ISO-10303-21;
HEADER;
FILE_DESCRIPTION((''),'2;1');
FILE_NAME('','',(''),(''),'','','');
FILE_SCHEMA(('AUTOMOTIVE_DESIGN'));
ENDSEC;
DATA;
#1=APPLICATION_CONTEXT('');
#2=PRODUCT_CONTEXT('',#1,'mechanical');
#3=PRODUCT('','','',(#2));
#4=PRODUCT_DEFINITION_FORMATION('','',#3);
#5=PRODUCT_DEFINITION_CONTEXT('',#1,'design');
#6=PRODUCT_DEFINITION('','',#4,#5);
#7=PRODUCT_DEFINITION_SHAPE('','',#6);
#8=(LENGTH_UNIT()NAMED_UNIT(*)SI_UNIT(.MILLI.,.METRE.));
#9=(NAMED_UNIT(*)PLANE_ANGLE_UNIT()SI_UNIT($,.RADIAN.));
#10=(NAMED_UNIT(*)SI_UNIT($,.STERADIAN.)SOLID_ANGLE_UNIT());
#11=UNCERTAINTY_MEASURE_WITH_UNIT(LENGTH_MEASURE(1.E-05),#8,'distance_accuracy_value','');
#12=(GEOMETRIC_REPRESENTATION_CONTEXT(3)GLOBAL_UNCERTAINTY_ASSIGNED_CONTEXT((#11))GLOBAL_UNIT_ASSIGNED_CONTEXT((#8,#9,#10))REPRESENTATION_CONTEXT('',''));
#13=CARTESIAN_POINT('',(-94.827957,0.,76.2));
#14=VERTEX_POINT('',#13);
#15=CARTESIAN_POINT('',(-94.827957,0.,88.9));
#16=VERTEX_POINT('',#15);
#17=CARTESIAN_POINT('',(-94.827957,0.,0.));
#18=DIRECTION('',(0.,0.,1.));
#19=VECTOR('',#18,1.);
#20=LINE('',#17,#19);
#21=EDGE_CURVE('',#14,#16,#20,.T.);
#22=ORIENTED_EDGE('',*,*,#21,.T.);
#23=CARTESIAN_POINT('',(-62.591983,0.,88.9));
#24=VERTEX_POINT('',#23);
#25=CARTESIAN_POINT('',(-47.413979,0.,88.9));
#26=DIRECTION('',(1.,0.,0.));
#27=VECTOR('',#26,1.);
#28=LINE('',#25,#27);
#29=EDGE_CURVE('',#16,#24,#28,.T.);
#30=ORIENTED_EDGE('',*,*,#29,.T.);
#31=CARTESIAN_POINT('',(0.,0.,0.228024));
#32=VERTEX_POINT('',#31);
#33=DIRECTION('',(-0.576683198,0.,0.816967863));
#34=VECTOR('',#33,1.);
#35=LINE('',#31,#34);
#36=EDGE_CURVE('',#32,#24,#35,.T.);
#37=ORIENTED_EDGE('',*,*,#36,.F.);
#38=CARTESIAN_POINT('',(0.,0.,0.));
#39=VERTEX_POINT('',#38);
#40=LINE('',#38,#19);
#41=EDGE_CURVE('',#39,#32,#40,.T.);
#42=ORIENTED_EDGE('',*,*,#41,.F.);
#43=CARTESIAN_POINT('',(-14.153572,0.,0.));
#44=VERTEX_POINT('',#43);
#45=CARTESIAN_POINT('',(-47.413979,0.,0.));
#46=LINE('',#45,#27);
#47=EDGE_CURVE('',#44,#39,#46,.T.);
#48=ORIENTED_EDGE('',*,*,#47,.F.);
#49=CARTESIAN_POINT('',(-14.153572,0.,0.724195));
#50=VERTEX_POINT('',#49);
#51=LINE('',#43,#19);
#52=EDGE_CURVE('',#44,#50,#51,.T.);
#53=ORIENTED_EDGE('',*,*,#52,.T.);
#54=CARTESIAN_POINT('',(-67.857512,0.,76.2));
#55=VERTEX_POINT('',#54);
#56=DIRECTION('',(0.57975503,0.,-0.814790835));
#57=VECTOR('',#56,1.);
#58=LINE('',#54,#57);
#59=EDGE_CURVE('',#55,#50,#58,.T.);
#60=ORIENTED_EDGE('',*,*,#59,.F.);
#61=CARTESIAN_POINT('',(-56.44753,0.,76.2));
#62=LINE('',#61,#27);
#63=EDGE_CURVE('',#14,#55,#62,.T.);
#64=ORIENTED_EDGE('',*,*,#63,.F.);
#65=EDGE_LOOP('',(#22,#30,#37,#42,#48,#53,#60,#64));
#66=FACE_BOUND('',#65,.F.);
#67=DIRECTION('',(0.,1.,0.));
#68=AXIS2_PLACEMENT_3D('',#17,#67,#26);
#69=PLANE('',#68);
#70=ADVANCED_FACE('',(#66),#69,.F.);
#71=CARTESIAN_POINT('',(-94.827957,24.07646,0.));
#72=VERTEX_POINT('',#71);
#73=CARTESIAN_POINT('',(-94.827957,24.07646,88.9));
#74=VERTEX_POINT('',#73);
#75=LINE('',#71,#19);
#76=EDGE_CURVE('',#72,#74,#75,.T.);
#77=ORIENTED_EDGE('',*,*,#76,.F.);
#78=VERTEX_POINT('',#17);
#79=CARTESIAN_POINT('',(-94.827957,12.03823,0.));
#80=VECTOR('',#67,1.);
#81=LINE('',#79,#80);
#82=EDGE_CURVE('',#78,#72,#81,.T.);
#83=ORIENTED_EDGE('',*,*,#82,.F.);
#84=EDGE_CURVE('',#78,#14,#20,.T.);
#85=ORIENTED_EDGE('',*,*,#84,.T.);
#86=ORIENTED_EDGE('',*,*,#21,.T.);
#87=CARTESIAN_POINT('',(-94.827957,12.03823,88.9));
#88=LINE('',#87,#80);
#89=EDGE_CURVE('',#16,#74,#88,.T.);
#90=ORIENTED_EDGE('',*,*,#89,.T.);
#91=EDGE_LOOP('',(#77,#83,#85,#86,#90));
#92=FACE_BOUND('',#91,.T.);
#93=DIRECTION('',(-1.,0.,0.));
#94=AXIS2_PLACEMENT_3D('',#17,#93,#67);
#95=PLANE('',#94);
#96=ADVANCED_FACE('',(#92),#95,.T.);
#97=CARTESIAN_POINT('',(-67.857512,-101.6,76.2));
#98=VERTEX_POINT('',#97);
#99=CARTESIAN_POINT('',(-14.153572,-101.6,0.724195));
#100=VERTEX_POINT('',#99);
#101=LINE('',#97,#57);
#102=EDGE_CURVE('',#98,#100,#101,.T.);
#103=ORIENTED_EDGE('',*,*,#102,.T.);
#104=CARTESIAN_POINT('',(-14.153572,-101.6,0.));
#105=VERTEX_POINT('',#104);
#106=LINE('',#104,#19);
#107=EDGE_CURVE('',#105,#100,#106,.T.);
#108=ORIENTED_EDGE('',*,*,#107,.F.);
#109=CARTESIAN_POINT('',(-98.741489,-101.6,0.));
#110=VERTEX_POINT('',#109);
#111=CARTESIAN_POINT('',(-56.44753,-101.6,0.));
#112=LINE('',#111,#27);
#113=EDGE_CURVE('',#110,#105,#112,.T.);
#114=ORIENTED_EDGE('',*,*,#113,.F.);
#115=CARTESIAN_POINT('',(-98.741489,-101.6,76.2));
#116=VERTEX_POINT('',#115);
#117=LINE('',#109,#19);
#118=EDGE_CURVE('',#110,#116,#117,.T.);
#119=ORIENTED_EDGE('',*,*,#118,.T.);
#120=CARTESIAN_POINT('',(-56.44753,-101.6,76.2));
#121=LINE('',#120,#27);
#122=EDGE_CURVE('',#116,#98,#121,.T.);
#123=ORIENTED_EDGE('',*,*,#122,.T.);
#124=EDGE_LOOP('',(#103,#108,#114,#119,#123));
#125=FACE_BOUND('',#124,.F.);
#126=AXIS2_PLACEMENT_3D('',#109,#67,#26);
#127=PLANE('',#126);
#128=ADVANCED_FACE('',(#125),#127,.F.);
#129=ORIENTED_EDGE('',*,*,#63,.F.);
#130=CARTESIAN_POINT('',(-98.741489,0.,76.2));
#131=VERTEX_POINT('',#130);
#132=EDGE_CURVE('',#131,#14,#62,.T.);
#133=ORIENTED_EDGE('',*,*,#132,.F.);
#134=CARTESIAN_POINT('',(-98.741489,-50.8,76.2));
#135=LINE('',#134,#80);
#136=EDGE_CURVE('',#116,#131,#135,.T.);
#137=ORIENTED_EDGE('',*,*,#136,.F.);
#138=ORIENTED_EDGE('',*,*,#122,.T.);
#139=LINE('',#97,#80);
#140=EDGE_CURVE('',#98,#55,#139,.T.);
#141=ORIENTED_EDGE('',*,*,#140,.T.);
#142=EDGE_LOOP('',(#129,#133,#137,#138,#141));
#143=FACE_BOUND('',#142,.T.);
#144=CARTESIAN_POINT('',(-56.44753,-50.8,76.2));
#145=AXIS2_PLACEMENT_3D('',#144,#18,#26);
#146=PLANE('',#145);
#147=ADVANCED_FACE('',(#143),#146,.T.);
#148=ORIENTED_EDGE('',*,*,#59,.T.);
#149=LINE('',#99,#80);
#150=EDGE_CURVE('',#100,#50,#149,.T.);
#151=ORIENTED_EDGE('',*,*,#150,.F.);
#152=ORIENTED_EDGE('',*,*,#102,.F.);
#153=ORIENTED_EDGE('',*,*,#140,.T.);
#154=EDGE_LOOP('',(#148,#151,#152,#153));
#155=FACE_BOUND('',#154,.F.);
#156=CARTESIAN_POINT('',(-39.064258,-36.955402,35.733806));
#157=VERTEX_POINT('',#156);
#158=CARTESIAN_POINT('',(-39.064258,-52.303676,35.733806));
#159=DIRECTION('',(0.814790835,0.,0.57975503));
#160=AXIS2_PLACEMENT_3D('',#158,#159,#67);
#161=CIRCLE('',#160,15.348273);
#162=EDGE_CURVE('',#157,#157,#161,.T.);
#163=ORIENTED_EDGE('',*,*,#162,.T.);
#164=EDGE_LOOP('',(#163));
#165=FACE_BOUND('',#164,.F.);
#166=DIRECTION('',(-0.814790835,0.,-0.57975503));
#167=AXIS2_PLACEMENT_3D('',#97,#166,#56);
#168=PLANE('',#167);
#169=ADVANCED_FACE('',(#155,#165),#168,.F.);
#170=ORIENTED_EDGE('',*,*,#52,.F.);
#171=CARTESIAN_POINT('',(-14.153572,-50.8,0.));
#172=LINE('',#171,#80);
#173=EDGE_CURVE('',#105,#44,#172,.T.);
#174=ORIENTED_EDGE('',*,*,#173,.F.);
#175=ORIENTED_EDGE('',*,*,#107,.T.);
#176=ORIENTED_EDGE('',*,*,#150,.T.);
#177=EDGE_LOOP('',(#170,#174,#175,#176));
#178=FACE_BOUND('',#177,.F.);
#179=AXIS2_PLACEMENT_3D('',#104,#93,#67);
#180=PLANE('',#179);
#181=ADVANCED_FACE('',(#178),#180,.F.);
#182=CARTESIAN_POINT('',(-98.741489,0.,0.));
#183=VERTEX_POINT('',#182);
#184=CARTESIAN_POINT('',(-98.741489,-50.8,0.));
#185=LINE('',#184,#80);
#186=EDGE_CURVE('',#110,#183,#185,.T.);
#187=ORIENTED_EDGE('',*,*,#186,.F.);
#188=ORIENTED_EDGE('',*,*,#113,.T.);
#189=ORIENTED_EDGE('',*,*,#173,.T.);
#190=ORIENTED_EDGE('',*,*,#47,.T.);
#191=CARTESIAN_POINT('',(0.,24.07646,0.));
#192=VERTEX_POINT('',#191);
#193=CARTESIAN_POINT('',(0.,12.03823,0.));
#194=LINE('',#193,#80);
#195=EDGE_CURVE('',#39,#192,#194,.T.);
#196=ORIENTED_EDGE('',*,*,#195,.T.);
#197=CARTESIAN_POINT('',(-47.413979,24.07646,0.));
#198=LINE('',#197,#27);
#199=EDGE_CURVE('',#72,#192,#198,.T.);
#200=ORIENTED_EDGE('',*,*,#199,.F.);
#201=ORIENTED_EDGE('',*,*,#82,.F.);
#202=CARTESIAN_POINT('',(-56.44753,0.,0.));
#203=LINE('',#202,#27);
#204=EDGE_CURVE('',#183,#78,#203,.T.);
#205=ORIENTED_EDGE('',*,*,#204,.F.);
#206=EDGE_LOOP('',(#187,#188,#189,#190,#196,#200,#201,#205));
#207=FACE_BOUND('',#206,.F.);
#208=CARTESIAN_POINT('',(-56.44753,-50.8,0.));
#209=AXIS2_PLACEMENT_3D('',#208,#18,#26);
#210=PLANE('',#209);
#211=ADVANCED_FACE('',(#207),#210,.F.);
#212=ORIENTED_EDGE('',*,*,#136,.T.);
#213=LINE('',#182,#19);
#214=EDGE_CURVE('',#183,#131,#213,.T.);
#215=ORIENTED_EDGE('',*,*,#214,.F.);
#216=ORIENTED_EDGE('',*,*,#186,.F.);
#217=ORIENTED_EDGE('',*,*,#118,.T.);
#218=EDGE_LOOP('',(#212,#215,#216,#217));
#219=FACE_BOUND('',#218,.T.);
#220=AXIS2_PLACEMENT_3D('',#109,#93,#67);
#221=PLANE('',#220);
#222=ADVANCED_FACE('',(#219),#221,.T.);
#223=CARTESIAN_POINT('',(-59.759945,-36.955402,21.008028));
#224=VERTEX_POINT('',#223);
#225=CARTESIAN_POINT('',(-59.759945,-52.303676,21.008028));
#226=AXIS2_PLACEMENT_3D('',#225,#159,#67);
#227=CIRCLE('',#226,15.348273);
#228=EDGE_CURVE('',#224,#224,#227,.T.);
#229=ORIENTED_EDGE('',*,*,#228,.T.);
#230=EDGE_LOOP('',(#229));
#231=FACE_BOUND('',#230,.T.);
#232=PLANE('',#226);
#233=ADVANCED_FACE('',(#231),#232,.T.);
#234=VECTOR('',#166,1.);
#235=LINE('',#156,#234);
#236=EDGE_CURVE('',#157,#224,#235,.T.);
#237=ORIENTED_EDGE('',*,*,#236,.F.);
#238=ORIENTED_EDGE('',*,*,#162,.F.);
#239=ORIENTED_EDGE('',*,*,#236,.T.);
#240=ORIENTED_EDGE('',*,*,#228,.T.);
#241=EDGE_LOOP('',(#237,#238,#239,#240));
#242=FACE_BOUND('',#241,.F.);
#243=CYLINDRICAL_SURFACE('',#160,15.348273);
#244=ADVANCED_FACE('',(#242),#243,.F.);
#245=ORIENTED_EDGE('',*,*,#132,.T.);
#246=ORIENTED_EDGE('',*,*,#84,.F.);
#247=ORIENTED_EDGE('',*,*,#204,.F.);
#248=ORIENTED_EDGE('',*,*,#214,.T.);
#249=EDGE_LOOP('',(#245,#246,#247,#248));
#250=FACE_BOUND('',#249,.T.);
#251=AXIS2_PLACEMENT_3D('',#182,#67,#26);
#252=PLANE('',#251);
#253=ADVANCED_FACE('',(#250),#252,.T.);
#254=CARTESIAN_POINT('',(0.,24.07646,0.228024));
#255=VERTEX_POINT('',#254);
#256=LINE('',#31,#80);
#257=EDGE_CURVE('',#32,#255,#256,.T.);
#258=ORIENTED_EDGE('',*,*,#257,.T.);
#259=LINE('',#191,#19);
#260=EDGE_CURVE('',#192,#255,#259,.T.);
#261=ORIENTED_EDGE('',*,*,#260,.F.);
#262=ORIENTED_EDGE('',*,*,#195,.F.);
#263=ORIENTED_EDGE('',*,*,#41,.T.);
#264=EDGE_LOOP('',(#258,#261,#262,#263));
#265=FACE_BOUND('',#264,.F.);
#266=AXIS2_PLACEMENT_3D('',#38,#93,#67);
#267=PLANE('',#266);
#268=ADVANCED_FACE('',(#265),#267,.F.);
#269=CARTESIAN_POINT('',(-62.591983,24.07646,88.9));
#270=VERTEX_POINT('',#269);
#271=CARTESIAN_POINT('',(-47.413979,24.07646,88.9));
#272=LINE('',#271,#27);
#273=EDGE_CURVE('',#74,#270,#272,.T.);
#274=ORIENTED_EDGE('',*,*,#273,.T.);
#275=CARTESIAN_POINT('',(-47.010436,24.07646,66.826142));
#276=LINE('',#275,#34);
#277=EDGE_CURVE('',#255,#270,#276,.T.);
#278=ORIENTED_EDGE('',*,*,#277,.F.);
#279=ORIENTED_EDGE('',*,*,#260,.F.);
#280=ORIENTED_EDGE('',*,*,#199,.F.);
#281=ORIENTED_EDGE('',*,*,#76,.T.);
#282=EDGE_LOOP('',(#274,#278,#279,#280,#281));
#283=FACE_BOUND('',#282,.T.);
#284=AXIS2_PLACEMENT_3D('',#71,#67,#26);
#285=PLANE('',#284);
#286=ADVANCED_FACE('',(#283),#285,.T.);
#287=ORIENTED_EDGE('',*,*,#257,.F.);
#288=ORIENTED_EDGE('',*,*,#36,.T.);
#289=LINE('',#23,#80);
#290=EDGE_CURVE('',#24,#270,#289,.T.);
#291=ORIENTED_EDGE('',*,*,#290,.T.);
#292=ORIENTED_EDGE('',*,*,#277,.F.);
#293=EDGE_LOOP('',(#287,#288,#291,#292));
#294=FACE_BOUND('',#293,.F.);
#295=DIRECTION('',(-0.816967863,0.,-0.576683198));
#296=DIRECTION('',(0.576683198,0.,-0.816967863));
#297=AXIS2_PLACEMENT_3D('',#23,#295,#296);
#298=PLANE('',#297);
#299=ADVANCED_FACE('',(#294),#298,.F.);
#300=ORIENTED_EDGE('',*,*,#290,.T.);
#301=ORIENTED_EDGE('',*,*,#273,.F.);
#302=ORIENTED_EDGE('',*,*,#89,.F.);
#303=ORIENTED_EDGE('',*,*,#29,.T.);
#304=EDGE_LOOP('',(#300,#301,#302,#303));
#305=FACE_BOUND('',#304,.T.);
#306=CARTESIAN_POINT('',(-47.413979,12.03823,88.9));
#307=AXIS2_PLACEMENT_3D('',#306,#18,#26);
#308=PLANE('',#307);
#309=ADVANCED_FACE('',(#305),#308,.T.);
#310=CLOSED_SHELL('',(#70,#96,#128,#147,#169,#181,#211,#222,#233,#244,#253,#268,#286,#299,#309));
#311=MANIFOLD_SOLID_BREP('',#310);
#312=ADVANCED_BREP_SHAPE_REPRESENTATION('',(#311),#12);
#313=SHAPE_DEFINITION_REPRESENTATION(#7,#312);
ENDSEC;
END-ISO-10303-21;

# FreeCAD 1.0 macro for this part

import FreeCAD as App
import Part
import Sketcher
Q = App.Units.Quantity


def add_polygon(sketch, points):
    """Adds a closed chain of lines whose ends are joined by coincident constraints."""
    first, n = sketch.GeometryCount, len(points)
    for a, b in zip(points, points[1:] + points[:1]):
        sketch.addGeometry(Part.LineSegment(App.Vector(*a, 0), App.Vector(*b, 0)), False)
    for i in range(n):
        sketch.addConstraint(Sketcher.Constraint("Coincident", first + i, 2, first + (i + 1) % n, 1))

doc = App.newDocument("Part")
body = doc.addObject("PartDesign::Body", "Body")

# Sketch on XY plane
sketch1 = body.newObject("Sketcher::SketchObject", "Sketch")
sketch1.AttachmentSupport = (doc.getObject("XY_Plane"), [""])
sketch1.MapMode = "FlatFace"
add_polygon(sketch1, [(-95, 24), (-95, 0), (0, 0), (0, 24)])  # lines 0-3
sketch1.addConstraint([
    Sketcher.Constraint("Vertical", 0),
    Sketcher.Constraint("Horizontal", 1),
    Sketcher.Constraint("Vertical", 2),
    Sketcher.Constraint("Horizontal", 3),
    Sketcher.Constraint("Coincident", 1, 2, -1, 1),
    Sketcher.Constraint("DistanceY", 0, 2, 0, 1, Q("24.07646 mm")),
    Sketcher.Constraint("DistanceX", 1, 1, 1, 2, Q("94.827957 mm")),
])
pad1 = body.newObject("PartDesign::Pad", "Pad")
pad1.Profile = sketch1
pad1.Length = Q("3.5 in")

# Sketch on XZ plane
sketch2 = body.newObject("Sketcher::SketchObject", "Sketch001")
sketch2.AttachmentSupport = (doc.getObject("XZ_Plane"), [""])
sketch2.MapMode = "FlatFace"
add_polygon(sketch2, [(0, 89), (-63, 89), (0, 0)])  # lines 0-2
sketch2.addConstraint([
    Sketcher.Constraint("Horizontal", 0),
    Sketcher.Constraint("Vertical", 2),
    Sketcher.Constraint("PointOnObject", 1, 2, -2),
    Sketcher.Constraint("DistanceY", -1, 1, 0, 2, Q("3.5 in")),
    Sketcher.Constraint("Distance", 1, Q("108.5379 mm")),
    Sketcher.Constraint("DistanceX", 0, 2, 0, 1, Q("62.591983 mm")),
])
pocket1 = body.newObject("PartDesign::Pocket", "Pocket")
pocket1.Profile = sketch2
pocket1.Length = Q("1.93 in")

# Sketch on XY plane
sketch3 = body.newObject("Sketcher::SketchObject", "Sketch002")
sketch3.AttachmentSupport = (doc.getObject("XY_Plane"), [""])
sketch3.MapMode = "FlatFace"
add_polygon(sketch3, [(-99, 0), (-99, -102), (-14, -102), (-14, 0)])  # lines 0-3
sketch3.addConstraint([
    Sketcher.Constraint("Vertical", 0),
    Sketcher.Constraint("Horizontal", 1),
    Sketcher.Constraint("Vertical", 2),
    Sketcher.Constraint("Horizontal", 3),
    Sketcher.Constraint("PointOnObject", 2, 2, -1),
    Sketcher.Constraint("DistanceY", 0, 2, 0, 1, Q("4 in")),
    Sketcher.Constraint("DistanceX", 1, 1, 1, 2, Q("84.587916 mm")),
    Sketcher.Constraint("DistanceX", 0, 2, -1, 1, Q("98.741489 mm")),
])
pad2 = body.newObject("PartDesign::Pad", "Pad001")
pad2.Profile = sketch3
pad2.Length = Q("3 in")

# Sketch on XZ plane
sketch4 = body.newObject("Sketcher::SketchObject", "Sketch003")
sketch4.AttachmentSupport = (doc.getObject("XZ_Plane"), [""])
sketch4.MapMode = "FlatFace"
sketch4.AttachmentOffset = App.Placement(App.Vector(0, 0, 4 * 25.4), App.Rotation())
add_polygon(sketch4, [(-14, 76), (-68, 76), (-14, 1)])  # lines 0-2
sketch4.addConstraint([
    Sketcher.Constraint("Horizontal", 0),
    Sketcher.Constraint("Vertical", 2),
    Sketcher.Constraint("DistanceY", -1, 1, 0, 2, Q("3 in")),
    Sketcher.Constraint("DistanceX", 0, 2, 0, 1, Q("53.703939 mm")),
    Sketcher.Constraint("DistanceY", 2, 1, 2, 2, Q("75.475805 mm")),
    Sketcher.Constraint("DistanceX", 0, 2, -1, 1, Q("67.857512 mm")),
])
pocket2 = body.newObject("PartDesign::Pocket", "Pocket001")
pocket2.Profile = sketch4
pocket2.Length = Q("4 in")

# Sketch on an angled plane
sketch5 = body.newObject("Sketcher::SketchObject", "Sketch004")
sketch5.Placement = App.Placement(App.Vector(-9.054237, 0, -6.442438), App.Rotation(App.Vector(0, 1, 0), App.Vector(-0.57975503, 0, 0.814790835), App.Vector(0.814790835, 0, 0.57975503), "ZXY"))
sketch5.addGeometry(Part.Circle(App.Vector(-52, 52, 0), App.Vector(0, 0, 1), 15), False)
sketch5.addConstraint([
    Sketcher.Constraint("Diameter", 0, Q("30.696547 mm")),
    Sketcher.Constraint("DistanceX", 0, 3, -1, 1, Q("2.0591998 in")),
    Sketcher.Constraint("DistanceY", -1, 1, 0, 3, Q("51.763277 mm")),
])
pocket3 = body.newObject("PartDesign::Pocket", "Pocket002")
pocket3.Profile = sketch5
pocket3.Length = Q("1 in")

doc.recompute()
